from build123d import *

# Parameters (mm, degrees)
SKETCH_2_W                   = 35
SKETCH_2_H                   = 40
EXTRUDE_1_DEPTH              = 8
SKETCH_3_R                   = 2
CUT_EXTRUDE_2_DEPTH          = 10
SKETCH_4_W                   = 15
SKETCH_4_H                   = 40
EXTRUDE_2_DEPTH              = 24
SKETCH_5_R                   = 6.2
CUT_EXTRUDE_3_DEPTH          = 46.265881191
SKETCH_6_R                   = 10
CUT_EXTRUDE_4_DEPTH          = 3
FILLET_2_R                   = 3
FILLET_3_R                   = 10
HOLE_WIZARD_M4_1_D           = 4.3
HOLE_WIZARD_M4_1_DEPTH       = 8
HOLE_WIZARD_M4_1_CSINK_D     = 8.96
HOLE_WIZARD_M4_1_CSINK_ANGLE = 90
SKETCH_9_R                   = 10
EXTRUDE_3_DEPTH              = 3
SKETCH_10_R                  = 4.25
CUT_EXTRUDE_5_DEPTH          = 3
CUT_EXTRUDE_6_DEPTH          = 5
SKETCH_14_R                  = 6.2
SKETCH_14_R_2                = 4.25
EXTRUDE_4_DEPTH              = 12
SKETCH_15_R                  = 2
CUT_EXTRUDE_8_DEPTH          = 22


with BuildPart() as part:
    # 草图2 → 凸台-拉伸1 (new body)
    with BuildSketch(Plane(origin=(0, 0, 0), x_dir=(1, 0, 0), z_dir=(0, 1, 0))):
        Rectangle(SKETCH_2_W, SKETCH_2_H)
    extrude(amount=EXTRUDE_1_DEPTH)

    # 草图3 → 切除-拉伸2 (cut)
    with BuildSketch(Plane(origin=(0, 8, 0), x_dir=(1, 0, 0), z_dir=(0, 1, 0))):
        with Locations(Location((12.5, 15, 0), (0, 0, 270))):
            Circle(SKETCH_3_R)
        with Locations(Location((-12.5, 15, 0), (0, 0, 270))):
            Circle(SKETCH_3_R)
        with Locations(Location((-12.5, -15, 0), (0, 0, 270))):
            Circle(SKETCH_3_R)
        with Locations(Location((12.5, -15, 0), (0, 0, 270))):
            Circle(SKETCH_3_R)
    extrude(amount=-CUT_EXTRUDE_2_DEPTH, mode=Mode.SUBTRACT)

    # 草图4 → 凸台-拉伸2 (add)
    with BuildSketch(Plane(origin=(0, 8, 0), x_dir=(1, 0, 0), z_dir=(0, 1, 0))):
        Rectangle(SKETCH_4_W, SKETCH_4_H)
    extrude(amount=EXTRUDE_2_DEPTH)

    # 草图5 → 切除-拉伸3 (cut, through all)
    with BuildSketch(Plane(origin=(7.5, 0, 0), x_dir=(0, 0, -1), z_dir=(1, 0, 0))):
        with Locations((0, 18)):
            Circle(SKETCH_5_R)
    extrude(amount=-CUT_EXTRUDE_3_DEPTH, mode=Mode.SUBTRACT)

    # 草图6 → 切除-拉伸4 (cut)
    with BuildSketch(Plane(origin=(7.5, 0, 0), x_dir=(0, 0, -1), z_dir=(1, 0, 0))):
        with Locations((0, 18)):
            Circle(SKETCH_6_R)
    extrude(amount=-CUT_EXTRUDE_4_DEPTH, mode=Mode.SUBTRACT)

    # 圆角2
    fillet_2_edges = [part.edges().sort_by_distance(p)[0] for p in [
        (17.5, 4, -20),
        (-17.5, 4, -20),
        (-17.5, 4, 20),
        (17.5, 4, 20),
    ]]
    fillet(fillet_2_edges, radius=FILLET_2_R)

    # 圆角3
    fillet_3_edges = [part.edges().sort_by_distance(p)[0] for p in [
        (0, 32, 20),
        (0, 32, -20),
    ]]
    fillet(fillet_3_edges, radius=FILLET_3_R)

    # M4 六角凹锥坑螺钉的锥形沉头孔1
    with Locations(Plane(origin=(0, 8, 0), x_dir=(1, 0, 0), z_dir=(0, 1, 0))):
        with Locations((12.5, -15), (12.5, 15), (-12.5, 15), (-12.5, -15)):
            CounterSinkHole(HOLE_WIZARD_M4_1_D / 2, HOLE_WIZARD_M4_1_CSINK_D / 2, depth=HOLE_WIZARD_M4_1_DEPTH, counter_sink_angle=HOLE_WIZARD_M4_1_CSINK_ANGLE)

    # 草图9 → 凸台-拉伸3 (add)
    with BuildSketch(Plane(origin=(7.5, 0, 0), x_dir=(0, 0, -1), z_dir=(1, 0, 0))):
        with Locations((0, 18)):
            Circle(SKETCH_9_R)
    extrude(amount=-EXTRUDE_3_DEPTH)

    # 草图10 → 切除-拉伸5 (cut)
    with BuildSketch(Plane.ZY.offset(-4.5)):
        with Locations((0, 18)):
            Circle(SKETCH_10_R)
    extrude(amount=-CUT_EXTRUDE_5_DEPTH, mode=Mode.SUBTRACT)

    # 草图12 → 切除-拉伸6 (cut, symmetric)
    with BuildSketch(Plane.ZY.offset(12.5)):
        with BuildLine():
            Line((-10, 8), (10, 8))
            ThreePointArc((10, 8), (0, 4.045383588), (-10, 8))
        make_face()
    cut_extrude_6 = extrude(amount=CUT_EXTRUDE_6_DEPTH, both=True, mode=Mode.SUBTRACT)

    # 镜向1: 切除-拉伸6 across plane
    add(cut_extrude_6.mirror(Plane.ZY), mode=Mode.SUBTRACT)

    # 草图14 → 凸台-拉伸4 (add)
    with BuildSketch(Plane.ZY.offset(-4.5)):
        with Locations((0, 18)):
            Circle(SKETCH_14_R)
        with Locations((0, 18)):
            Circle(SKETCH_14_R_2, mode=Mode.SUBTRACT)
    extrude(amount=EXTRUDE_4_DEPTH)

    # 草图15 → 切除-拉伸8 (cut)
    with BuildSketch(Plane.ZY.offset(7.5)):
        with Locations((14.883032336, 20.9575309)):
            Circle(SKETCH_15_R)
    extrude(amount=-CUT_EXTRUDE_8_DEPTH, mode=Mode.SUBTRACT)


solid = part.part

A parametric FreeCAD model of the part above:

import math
import FreeCAD as App
import Part
import Sketcher

V = App.Vector
Q = App.Units.Quantity


def edges_at(feature, points):
    """Names of the edges that pass closest to the given points."""
    edges = feature.Shape.Edges
    near = lambda p: min(range(len(edges)), key=lambda i: edges[i].distToShape(Part.Vertex(*p))[0])
    return sorted({f"Edge{near(p) + 1}" for p in points})

doc = App.newDocument("Part")
body = doc.addObject("PartDesign::Body", "Body")

# Sketch on XZ plane
sketch1 = body.newObject("Sketcher::SketchObject", "Sketch")
sketch1.AttachmentSupport = (doc.getObject("XZ_Plane"), [""])
sketch1.MapMode = "FlatFace"
sketch1.addGeometry(Part.LineSegment(V(-18, -20, 0), V(-18, 20, 0)), False)
sketch1.addGeometry(Part.LineSegment(V(-18, 20, 0), V(18, 20, 0)), False)
sketch1.addGeometry(Part.LineSegment(V(18, 20, 0), V(18, -20, 0)), False)
sketch1.addGeometry(Part.LineSegment(V(18, -20, 0), V(-18, -20, 0)), False)
sketch1.addConstraint(Sketcher.Constraint("Coincident", 0, 2, 1, 1))
sketch1.addConstraint(Sketcher.Constraint("Coincident", 1, 2, 2, 1))
sketch1.addConstraint(Sketcher.Constraint("Coincident", 2, 2, 3, 1))
sketch1.addConstraint(Sketcher.Constraint("Coincident", 3, 2, 0, 1))
sketch1.addConstraint(Sketcher.Constraint("Vertical", 0))
sketch1.addConstraint(Sketcher.Constraint("Horizontal", 1))
sketch1.addConstraint(Sketcher.Constraint("Vertical", 2))
sketch1.addConstraint(Sketcher.Constraint("Horizontal", 3))
sketch1.addConstraint(Sketcher.Constraint("Symmetric", 0, 2, 2, 2, -1, 1))
sketch1.addConstraint(Sketcher.Constraint("DistanceX", 1, 1, 1, 2, Q("35 mm")))
sketch1.addConstraint(Sketcher.Constraint("DistanceY", 0, 1, 0, 2, Q("40 mm")))
pad1 = body.newObject("PartDesign::Pad", "Pad")
pad1.Profile = sketch1
pad1.Length = 8
pad1.Reversed = True

# Sketch on XZ plane
sketch2 = body.newObject("Sketcher::SketchObject", "Sketch001")
sketch2.AttachmentSupport = (doc.getObject("XZ_Plane"), [""])
sketch2.MapMode = "FlatFace"
sketch2.AttachmentOffset = App.Placement(V(0, 0, -8), App.Rotation())
sketch2.addGeometry(Part.Circle(V(12.5, -15, 0), V(0, 0, 1), 2), False)
sketch2.addGeometry(Part.Circle(V(-12.5, -15, 0), V(0, 0, 1), 2), False)
sketch2.addGeometry(Part.Circle(V(-12.5, 15, 0), V(0, 0, 1), 2), False)
sketch2.addGeometry(Part.Circle(V(12.5, 15, 0), V(0, 0, 1), 2), False)
sketch2.addConstraint(Sketcher.Constraint("Equal", 0, 1))
sketch2.addConstraint(Sketcher.Constraint("Equal", 1, 2))
sketch2.addConstraint(Sketcher.Constraint("Equal", 2, 3))
sketch2.addConstraint(Sketcher.Constraint("Symmetric", 0, 3, 2, 3, -1, 1))
sketch2.addConstraint(Sketcher.Constraint("Symmetric", 1, 3, 3, 3, -1, 1))
sketch2.addConstraint(Sketcher.Constraint("Symmetric", 0, 3, 1, 3, -2))
sketch2.addConstraint(Sketcher.Constraint("Diameter", 0, Q("4 mm")))
sketch2.addConstraint(Sketcher.Constraint("DistanceY", 0, 3, -1, 1, Q("15 mm")))
sketch2.addConstraint(Sketcher.Constraint("DistanceX", 1, 3, 0, 3, Q("25 mm")))
pocket1 = body.newObject("PartDesign::Pocket", "Pocket")
pocket1.Profile = sketch2
pocket1.Length = 10
pocket1.Reversed = True

# Sketch on XZ plane
sketch3 = body.newObject("Sketcher::SketchObject", "Sketch002")
sketch3.AttachmentSupport = (doc.getObject("XZ_Plane"), [""])
sketch3.MapMode = "FlatFace"
sketch3.AttachmentOffset = App.Placement(V(0, 0, -8), App.Rotation())
sketch3.addGeometry(Part.LineSegment(V(-8, -20, 0), V(-8, 20, 0)), False)
sketch3.addGeometry(Part.LineSegment(V(-8, 20, 0), V(8, 20, 0)), False)
sketch3.addGeometry(Part.LineSegment(V(8, 20, 0), V(8, -20, 0)), False)
sketch3.addGeometry(Part.LineSegment(V(8, -20, 0), V(-8, -20, 0)), False)
sketch3.addConstraint(Sketcher.Constraint("Coincident", 0, 2, 1, 1))
sketch3.addConstraint(Sketcher.Constraint("Coincident", 1, 2, 2, 1))
sketch3.addConstraint(Sketcher.Constraint("Coincident", 2, 2, 3, 1))
sketch3.addConstraint(Sketcher.Constraint("Coincident", 3, 2, 0, 1))
sketch3.addConstraint(Sketcher.Constraint("Vertical", 0))
sketch3.addConstraint(Sketcher.Constraint("Horizontal", 1))
sketch3.addConstraint(Sketcher.Constraint("Vertical", 2))
sketch3.addConstraint(Sketcher.Constraint("Horizontal", 3))
sketch3.addConstraint(Sketcher.Constraint("Symmetric", 0, 2, 2, 2, -1, 1))
sketch3.addConstraint(Sketcher.Constraint("DistanceX", 1, 1, 1, 2, Q("15 mm")))
sketch3.addConstraint(Sketcher.Constraint("DistanceY", 0, 1, 0, 2, Q("40 mm")))
pad2 = body.newObject("PartDesign::Pad", "Pad001")
pad2.Profile = sketch3
pad2.Length = 24
pad2.Reversed = True

# Sketch on YZ plane
sketch4 = body.newObject("Sketcher::SketchObject", "Sketch003")
sketch4.AttachmentSupport = (doc.getObject("YZ_Plane"), [""])
sketch4.MapMode = "FlatFace"
sketch4.AttachmentOffset = App.Placement(V(0, 0, 7.5), App.Rotation())
sketch4.addGeometry(Part.Circle(V(18, 0, 0), V(0, 0, 1), 6), False)
sketch4.addConstraint(Sketcher.Constraint("PointOnObject", 0, 3, -1))
sketch4.addConstraint(Sketcher.Constraint("Diameter", 0, Q("12.4 mm")))
sketch4.addConstraint(Sketcher.Constraint("DistanceX", -1, 1, 0, 3, Q("18 mm")))
pocket2 = body.newObject("PartDesign::Pocket", "Pocket001")
pocket2.Profile = sketch4
pocket2.Type = "ThroughAll"

# Sketch on YZ plane
sketch5 = body.newObject("Sketcher::SketchObject", "Sketch004")
sketch5.AttachmentSupport = (doc.getObject("YZ_Plane"), [""])
sketch5.MapMode = "FlatFace"
sketch5.AttachmentOffset = App.Placement(V(0, 0, 7.5), App.Rotation())
sketch5.addGeometry(Part.Circle(V(18, 0, 0), V(0, 0, 1), 10), False)
sketch5.addConstraint(Sketcher.Constraint("PointOnObject", 0, 3, -1))
sketch5.addConstraint(Sketcher.Constraint("Diameter", 0, Q("20 mm")))
sketch5.addConstraint(Sketcher.Constraint("DistanceX", -1, 1, 0, 3, Q("18 mm")))
pocket3 = body.newObject("PartDesign::Pocket", "Pocket002")
pocket3.Profile = sketch5
pocket3.Length = 3
doc.recompute()

fillet = body.newObject("PartDesign::Fillet", "Fillet")
fillet.Base = (pocket3, edges_at(pocket3, [
    (17.5, 4, -20),
    (-17.5, 4, -20),
    (-17.5, 4, 20),
    (17.5, 4, 20),
]))
fillet.Radius = 3
doc.recompute()

fillet2 = body.newObject("PartDesign::Fillet", "Fillet001")
fillet2.Base = (fillet, edges_at(fillet, [(0, 32, 20), (0, 32, -20)]))
fillet2.Radius = 10

# Sketch on XZ plane
sketch6 = body.newObject("Sketcher::SketchObject", "Sketch005")
sketch6.AttachmentSupport = (doc.getObject("XZ_Plane"), [""])
sketch6.MapMode = "FlatFace"
sketch6.AttachmentOffset = App.Placement(V(0, 0, -8), App.Rotation())
sketch6.addGeometry(Part.Circle(V(12.5, 15, 0), V(0, 0, 1), 2.1), False)
sketch6.addGeometry(Part.Circle(V(12.5, -15, 0), V(0, 0, 1), 2.1), False)
sketch6.addGeometry(Part.Circle(V(-12.5, -15, 0), V(0, 0, 1), 2.1), False)
sketch6.addGeometry(Part.Circle(V(-12.5, 15, 0), V(0, 0, 1), 2.1), False)
sketch6.addConstraint(Sketcher.Constraint("Equal", 0, 1))
sketch6.addConstraint(Sketcher.Constraint("Equal", 1, 2))
sketch6.addConstraint(Sketcher.Constraint("Equal", 2, 3))
sketch6.addConstraint(Sketcher.Constraint("Symmetric", 0, 3, 2, 3, -1, 1))
sketch6.addConstraint(Sketcher.Constraint("Symmetric", 1, 3, 3, 3, -1, 1))
sketch6.addConstraint(Sketcher.Constraint("Symmetric", 1, 3, 2, 3, -2))
sketch6.addConstraint(Sketcher.Constraint("Diameter", 0, Q("4.3 mm")))
sketch6.addConstraint(Sketcher.Constraint("DistanceY", -1, 1, 0, 3, Q("15 mm")))
sketch6.addConstraint(Sketcher.Constraint("DistanceX", 2, 3, 1, 3, Q("25 mm")))
doc.recompute()
hole = body.newObject("PartDesign::Hole", "Hole")
hole.Profile = sketch6
hole.ThreadType = "None"
hole.Diameter = 4.3
hole.DepthType = "Dimension"
hole.Depth = 8
hole.DrillPoint = "Flat"
hole.HoleCutType = "Countersink"
hole.HoleCutDiameter = 8.96
hole.HoleCutCountersinkAngle = 90
hole.Reversed = True

# Sketch on YZ plane
sketch7 = body.newObject("Sketcher::SketchObject", "Sketch006")
sketch7.AttachmentSupport = (doc.getObject("YZ_Plane"), [""])
sketch7.MapMode = "FlatFace"
sketch7.AttachmentOffset = App.Placement(V(0, 0, 7.5), App.Rotation())
sketch7.addGeometry(Part.Circle(V(18, 0, 0), V(0, 0, 1), 10), False)
sketch7.addConstraint(Sketcher.Constraint("PointOnObject", 0, 3, -1))
sketch7.addConstraint(Sketcher.Constraint("Diameter", 0, Q("20 mm")))
sketch7.addConstraint(Sketcher.Constraint("DistanceX", -1, 1, 0, 3, Q("18 mm")))
pad3 = body.newObject("PartDesign::Pad", "Pad002")
pad3.Profile = sketch7
pad3.Length = 3
pad3.Reversed = True

# Sketch on YZ plane
sketch8 = body.newObject("Sketcher::SketchObject", "Sketch007")
sketch8.AttachmentSupport = (doc.getObject("YZ_Plane"), [""])
sketch8.MapMode = "FlatFace"
sketch8.AttachmentOffset = App.Placement(V(0, 0, 4.5), App.Rotation())
sketch8.addGeometry(Part.Circle(V(18, 0, 0), V(0, 0, 1), 4.2), False)
sketch8.addConstraint(Sketcher.Constraint("PointOnObject", 0, 3, -1))
sketch8.addConstraint(Sketcher.Constraint("Diameter", 0, Q("8.5 mm")))
sketch8.addConstraint(Sketcher.Constraint("DistanceX", -1, 1, 0, 3, Q("18 mm")))
pocket4 = body.newObject("PartDesign::Pocket", "Pocket003")
pocket4.Profile = sketch8
pocket4.Length = 3
pocket4.Reversed = True

# Sketch on YZ plane
sketch9 = body.newObject("Sketcher::SketchObject", "Sketch008")
sketch9.AttachmentSupport = (doc.getObject("YZ_Plane"), [""])
sketch9.MapMode = "FlatFace"
sketch9.AttachmentOffset = App.Placement(V(0, 0, -12.5), App.Rotation())
sketch9.addGeometry(Part.LineSegment(V(8, 10, 0), V(8, -10, 0)), False)
sketch9.addGeometry(Part.ArcOfCircle(Part.Circle(V(19, 0, 0), V(0, 0, 1), 15), math.radians(137), math.radians(223)), False)
sketch9.addConstraint(Sketcher.Constraint("Coincident", 0, 1, 1, 1))
sketch9.addConstraint(Sketcher.Constraint("Coincident", 1, 2, 0, 2))
sketch9.addConstraint(Sketcher.Constraint("Vertical", 0))
sketch9.addConstraint(Sketcher.Constraint("PointOnObject", 1, 3, -1))
sketch9.addConstraint(Sketcher.Constraint("DistanceY", 0, 2, 0, 1, Q("20 mm")))
sketch9.addConstraint(Sketcher.Constraint("DistanceX", -1, 1, 0, 1, Q("8 mm")))
sketch9.addConstraint(Sketcher.Constraint("Radius", 1, Q("14.62076 mm")))
pocket5 = body.newObject("PartDesign::Pocket", "Pocket004")
pocket5.Profile = sketch9
pocket5.Length = 10
pocket5.Midplane = True
doc.recompute()

mirrored = body.newObject("PartDesign::Mirrored", "Mirrored")
mirrored.Originals = [pocket5]
mirrored.MirrorPlane = (doc.getObject("YZ_Plane"), [""])
body.Tip = mirrored

# Sketch on YZ plane
sketch10 = body.newObject("Sketcher::SketchObject", "Sketch009")
sketch10.AttachmentSupport = (doc.getObject("YZ_Plane"), [""])
sketch10.MapMode = "FlatFace"
sketch10.AttachmentOffset = App.Placement(V(0, 0, 4.5), App.Rotation())
sketch10.addGeometry(Part.Circle(V(18, 0, 0), V(0, 0, 1), 6.2), False)
sketch10.addGeometry(Part.Circle(V(18, 0, 0), V(0, 0, 1), 4.2), False)
sketch10.addConstraint(Sketcher.Constraint("Coincident", 1, 3, 0, 3))
sketch10.addConstraint(Sketcher.Constraint("PointOnObject", 0, 3, -1))
sketch10.addConstraint(Sketcher.Constraint("Diameter", 0, Q("12.4 mm")))
sketch10.addConstraint(Sketcher.Constraint("Diameter", 1, Q("8.5 mm")))
sketch10.addConstraint(Sketcher.Constraint("DistanceX", -1, 1, 0, 3, Q("18 mm")))
pad4 = body.newObject("PartDesign::Pad", "Pad003")
pad4.Profile = sketch10
pad4.Length = 12
pad4.Reversed = True

# Sketch on YZ plane
sketch11 = body.newObject("Sketcher::SketchObject", "Sketch010")
sketch11.AttachmentSupport = (doc.getObject("YZ_Plane"), [""])
sketch11.MapMode = "FlatFace"
sketch11.AttachmentOffset = App.Placement(V(0, 0, -7.5), App.Rotation())
sketch11.addGeometry(Part.Circle(V(21, 14.9, 0), V(0, 0, 1), 2), False)
sketch11.addConstraint(Sketcher.Constraint("Diameter", 0, Q("4 mm")))
sketch11.addConstraint(Sketcher.Constraint("DistanceX", -1, 1, 0, 3, Q("20.957531 mm")))
sketch11.addConstraint(Sketcher.Constraint("DistanceY", -1, 1, 0, 3, Q("14.883032 mm")))
pocket6 = body.newObject("PartDesign::Pocket", "Pocket005")
pocket6.Profile = sketch11
pocket6.Length = 22
pocket6.Reversed = True

doc.recompute()
